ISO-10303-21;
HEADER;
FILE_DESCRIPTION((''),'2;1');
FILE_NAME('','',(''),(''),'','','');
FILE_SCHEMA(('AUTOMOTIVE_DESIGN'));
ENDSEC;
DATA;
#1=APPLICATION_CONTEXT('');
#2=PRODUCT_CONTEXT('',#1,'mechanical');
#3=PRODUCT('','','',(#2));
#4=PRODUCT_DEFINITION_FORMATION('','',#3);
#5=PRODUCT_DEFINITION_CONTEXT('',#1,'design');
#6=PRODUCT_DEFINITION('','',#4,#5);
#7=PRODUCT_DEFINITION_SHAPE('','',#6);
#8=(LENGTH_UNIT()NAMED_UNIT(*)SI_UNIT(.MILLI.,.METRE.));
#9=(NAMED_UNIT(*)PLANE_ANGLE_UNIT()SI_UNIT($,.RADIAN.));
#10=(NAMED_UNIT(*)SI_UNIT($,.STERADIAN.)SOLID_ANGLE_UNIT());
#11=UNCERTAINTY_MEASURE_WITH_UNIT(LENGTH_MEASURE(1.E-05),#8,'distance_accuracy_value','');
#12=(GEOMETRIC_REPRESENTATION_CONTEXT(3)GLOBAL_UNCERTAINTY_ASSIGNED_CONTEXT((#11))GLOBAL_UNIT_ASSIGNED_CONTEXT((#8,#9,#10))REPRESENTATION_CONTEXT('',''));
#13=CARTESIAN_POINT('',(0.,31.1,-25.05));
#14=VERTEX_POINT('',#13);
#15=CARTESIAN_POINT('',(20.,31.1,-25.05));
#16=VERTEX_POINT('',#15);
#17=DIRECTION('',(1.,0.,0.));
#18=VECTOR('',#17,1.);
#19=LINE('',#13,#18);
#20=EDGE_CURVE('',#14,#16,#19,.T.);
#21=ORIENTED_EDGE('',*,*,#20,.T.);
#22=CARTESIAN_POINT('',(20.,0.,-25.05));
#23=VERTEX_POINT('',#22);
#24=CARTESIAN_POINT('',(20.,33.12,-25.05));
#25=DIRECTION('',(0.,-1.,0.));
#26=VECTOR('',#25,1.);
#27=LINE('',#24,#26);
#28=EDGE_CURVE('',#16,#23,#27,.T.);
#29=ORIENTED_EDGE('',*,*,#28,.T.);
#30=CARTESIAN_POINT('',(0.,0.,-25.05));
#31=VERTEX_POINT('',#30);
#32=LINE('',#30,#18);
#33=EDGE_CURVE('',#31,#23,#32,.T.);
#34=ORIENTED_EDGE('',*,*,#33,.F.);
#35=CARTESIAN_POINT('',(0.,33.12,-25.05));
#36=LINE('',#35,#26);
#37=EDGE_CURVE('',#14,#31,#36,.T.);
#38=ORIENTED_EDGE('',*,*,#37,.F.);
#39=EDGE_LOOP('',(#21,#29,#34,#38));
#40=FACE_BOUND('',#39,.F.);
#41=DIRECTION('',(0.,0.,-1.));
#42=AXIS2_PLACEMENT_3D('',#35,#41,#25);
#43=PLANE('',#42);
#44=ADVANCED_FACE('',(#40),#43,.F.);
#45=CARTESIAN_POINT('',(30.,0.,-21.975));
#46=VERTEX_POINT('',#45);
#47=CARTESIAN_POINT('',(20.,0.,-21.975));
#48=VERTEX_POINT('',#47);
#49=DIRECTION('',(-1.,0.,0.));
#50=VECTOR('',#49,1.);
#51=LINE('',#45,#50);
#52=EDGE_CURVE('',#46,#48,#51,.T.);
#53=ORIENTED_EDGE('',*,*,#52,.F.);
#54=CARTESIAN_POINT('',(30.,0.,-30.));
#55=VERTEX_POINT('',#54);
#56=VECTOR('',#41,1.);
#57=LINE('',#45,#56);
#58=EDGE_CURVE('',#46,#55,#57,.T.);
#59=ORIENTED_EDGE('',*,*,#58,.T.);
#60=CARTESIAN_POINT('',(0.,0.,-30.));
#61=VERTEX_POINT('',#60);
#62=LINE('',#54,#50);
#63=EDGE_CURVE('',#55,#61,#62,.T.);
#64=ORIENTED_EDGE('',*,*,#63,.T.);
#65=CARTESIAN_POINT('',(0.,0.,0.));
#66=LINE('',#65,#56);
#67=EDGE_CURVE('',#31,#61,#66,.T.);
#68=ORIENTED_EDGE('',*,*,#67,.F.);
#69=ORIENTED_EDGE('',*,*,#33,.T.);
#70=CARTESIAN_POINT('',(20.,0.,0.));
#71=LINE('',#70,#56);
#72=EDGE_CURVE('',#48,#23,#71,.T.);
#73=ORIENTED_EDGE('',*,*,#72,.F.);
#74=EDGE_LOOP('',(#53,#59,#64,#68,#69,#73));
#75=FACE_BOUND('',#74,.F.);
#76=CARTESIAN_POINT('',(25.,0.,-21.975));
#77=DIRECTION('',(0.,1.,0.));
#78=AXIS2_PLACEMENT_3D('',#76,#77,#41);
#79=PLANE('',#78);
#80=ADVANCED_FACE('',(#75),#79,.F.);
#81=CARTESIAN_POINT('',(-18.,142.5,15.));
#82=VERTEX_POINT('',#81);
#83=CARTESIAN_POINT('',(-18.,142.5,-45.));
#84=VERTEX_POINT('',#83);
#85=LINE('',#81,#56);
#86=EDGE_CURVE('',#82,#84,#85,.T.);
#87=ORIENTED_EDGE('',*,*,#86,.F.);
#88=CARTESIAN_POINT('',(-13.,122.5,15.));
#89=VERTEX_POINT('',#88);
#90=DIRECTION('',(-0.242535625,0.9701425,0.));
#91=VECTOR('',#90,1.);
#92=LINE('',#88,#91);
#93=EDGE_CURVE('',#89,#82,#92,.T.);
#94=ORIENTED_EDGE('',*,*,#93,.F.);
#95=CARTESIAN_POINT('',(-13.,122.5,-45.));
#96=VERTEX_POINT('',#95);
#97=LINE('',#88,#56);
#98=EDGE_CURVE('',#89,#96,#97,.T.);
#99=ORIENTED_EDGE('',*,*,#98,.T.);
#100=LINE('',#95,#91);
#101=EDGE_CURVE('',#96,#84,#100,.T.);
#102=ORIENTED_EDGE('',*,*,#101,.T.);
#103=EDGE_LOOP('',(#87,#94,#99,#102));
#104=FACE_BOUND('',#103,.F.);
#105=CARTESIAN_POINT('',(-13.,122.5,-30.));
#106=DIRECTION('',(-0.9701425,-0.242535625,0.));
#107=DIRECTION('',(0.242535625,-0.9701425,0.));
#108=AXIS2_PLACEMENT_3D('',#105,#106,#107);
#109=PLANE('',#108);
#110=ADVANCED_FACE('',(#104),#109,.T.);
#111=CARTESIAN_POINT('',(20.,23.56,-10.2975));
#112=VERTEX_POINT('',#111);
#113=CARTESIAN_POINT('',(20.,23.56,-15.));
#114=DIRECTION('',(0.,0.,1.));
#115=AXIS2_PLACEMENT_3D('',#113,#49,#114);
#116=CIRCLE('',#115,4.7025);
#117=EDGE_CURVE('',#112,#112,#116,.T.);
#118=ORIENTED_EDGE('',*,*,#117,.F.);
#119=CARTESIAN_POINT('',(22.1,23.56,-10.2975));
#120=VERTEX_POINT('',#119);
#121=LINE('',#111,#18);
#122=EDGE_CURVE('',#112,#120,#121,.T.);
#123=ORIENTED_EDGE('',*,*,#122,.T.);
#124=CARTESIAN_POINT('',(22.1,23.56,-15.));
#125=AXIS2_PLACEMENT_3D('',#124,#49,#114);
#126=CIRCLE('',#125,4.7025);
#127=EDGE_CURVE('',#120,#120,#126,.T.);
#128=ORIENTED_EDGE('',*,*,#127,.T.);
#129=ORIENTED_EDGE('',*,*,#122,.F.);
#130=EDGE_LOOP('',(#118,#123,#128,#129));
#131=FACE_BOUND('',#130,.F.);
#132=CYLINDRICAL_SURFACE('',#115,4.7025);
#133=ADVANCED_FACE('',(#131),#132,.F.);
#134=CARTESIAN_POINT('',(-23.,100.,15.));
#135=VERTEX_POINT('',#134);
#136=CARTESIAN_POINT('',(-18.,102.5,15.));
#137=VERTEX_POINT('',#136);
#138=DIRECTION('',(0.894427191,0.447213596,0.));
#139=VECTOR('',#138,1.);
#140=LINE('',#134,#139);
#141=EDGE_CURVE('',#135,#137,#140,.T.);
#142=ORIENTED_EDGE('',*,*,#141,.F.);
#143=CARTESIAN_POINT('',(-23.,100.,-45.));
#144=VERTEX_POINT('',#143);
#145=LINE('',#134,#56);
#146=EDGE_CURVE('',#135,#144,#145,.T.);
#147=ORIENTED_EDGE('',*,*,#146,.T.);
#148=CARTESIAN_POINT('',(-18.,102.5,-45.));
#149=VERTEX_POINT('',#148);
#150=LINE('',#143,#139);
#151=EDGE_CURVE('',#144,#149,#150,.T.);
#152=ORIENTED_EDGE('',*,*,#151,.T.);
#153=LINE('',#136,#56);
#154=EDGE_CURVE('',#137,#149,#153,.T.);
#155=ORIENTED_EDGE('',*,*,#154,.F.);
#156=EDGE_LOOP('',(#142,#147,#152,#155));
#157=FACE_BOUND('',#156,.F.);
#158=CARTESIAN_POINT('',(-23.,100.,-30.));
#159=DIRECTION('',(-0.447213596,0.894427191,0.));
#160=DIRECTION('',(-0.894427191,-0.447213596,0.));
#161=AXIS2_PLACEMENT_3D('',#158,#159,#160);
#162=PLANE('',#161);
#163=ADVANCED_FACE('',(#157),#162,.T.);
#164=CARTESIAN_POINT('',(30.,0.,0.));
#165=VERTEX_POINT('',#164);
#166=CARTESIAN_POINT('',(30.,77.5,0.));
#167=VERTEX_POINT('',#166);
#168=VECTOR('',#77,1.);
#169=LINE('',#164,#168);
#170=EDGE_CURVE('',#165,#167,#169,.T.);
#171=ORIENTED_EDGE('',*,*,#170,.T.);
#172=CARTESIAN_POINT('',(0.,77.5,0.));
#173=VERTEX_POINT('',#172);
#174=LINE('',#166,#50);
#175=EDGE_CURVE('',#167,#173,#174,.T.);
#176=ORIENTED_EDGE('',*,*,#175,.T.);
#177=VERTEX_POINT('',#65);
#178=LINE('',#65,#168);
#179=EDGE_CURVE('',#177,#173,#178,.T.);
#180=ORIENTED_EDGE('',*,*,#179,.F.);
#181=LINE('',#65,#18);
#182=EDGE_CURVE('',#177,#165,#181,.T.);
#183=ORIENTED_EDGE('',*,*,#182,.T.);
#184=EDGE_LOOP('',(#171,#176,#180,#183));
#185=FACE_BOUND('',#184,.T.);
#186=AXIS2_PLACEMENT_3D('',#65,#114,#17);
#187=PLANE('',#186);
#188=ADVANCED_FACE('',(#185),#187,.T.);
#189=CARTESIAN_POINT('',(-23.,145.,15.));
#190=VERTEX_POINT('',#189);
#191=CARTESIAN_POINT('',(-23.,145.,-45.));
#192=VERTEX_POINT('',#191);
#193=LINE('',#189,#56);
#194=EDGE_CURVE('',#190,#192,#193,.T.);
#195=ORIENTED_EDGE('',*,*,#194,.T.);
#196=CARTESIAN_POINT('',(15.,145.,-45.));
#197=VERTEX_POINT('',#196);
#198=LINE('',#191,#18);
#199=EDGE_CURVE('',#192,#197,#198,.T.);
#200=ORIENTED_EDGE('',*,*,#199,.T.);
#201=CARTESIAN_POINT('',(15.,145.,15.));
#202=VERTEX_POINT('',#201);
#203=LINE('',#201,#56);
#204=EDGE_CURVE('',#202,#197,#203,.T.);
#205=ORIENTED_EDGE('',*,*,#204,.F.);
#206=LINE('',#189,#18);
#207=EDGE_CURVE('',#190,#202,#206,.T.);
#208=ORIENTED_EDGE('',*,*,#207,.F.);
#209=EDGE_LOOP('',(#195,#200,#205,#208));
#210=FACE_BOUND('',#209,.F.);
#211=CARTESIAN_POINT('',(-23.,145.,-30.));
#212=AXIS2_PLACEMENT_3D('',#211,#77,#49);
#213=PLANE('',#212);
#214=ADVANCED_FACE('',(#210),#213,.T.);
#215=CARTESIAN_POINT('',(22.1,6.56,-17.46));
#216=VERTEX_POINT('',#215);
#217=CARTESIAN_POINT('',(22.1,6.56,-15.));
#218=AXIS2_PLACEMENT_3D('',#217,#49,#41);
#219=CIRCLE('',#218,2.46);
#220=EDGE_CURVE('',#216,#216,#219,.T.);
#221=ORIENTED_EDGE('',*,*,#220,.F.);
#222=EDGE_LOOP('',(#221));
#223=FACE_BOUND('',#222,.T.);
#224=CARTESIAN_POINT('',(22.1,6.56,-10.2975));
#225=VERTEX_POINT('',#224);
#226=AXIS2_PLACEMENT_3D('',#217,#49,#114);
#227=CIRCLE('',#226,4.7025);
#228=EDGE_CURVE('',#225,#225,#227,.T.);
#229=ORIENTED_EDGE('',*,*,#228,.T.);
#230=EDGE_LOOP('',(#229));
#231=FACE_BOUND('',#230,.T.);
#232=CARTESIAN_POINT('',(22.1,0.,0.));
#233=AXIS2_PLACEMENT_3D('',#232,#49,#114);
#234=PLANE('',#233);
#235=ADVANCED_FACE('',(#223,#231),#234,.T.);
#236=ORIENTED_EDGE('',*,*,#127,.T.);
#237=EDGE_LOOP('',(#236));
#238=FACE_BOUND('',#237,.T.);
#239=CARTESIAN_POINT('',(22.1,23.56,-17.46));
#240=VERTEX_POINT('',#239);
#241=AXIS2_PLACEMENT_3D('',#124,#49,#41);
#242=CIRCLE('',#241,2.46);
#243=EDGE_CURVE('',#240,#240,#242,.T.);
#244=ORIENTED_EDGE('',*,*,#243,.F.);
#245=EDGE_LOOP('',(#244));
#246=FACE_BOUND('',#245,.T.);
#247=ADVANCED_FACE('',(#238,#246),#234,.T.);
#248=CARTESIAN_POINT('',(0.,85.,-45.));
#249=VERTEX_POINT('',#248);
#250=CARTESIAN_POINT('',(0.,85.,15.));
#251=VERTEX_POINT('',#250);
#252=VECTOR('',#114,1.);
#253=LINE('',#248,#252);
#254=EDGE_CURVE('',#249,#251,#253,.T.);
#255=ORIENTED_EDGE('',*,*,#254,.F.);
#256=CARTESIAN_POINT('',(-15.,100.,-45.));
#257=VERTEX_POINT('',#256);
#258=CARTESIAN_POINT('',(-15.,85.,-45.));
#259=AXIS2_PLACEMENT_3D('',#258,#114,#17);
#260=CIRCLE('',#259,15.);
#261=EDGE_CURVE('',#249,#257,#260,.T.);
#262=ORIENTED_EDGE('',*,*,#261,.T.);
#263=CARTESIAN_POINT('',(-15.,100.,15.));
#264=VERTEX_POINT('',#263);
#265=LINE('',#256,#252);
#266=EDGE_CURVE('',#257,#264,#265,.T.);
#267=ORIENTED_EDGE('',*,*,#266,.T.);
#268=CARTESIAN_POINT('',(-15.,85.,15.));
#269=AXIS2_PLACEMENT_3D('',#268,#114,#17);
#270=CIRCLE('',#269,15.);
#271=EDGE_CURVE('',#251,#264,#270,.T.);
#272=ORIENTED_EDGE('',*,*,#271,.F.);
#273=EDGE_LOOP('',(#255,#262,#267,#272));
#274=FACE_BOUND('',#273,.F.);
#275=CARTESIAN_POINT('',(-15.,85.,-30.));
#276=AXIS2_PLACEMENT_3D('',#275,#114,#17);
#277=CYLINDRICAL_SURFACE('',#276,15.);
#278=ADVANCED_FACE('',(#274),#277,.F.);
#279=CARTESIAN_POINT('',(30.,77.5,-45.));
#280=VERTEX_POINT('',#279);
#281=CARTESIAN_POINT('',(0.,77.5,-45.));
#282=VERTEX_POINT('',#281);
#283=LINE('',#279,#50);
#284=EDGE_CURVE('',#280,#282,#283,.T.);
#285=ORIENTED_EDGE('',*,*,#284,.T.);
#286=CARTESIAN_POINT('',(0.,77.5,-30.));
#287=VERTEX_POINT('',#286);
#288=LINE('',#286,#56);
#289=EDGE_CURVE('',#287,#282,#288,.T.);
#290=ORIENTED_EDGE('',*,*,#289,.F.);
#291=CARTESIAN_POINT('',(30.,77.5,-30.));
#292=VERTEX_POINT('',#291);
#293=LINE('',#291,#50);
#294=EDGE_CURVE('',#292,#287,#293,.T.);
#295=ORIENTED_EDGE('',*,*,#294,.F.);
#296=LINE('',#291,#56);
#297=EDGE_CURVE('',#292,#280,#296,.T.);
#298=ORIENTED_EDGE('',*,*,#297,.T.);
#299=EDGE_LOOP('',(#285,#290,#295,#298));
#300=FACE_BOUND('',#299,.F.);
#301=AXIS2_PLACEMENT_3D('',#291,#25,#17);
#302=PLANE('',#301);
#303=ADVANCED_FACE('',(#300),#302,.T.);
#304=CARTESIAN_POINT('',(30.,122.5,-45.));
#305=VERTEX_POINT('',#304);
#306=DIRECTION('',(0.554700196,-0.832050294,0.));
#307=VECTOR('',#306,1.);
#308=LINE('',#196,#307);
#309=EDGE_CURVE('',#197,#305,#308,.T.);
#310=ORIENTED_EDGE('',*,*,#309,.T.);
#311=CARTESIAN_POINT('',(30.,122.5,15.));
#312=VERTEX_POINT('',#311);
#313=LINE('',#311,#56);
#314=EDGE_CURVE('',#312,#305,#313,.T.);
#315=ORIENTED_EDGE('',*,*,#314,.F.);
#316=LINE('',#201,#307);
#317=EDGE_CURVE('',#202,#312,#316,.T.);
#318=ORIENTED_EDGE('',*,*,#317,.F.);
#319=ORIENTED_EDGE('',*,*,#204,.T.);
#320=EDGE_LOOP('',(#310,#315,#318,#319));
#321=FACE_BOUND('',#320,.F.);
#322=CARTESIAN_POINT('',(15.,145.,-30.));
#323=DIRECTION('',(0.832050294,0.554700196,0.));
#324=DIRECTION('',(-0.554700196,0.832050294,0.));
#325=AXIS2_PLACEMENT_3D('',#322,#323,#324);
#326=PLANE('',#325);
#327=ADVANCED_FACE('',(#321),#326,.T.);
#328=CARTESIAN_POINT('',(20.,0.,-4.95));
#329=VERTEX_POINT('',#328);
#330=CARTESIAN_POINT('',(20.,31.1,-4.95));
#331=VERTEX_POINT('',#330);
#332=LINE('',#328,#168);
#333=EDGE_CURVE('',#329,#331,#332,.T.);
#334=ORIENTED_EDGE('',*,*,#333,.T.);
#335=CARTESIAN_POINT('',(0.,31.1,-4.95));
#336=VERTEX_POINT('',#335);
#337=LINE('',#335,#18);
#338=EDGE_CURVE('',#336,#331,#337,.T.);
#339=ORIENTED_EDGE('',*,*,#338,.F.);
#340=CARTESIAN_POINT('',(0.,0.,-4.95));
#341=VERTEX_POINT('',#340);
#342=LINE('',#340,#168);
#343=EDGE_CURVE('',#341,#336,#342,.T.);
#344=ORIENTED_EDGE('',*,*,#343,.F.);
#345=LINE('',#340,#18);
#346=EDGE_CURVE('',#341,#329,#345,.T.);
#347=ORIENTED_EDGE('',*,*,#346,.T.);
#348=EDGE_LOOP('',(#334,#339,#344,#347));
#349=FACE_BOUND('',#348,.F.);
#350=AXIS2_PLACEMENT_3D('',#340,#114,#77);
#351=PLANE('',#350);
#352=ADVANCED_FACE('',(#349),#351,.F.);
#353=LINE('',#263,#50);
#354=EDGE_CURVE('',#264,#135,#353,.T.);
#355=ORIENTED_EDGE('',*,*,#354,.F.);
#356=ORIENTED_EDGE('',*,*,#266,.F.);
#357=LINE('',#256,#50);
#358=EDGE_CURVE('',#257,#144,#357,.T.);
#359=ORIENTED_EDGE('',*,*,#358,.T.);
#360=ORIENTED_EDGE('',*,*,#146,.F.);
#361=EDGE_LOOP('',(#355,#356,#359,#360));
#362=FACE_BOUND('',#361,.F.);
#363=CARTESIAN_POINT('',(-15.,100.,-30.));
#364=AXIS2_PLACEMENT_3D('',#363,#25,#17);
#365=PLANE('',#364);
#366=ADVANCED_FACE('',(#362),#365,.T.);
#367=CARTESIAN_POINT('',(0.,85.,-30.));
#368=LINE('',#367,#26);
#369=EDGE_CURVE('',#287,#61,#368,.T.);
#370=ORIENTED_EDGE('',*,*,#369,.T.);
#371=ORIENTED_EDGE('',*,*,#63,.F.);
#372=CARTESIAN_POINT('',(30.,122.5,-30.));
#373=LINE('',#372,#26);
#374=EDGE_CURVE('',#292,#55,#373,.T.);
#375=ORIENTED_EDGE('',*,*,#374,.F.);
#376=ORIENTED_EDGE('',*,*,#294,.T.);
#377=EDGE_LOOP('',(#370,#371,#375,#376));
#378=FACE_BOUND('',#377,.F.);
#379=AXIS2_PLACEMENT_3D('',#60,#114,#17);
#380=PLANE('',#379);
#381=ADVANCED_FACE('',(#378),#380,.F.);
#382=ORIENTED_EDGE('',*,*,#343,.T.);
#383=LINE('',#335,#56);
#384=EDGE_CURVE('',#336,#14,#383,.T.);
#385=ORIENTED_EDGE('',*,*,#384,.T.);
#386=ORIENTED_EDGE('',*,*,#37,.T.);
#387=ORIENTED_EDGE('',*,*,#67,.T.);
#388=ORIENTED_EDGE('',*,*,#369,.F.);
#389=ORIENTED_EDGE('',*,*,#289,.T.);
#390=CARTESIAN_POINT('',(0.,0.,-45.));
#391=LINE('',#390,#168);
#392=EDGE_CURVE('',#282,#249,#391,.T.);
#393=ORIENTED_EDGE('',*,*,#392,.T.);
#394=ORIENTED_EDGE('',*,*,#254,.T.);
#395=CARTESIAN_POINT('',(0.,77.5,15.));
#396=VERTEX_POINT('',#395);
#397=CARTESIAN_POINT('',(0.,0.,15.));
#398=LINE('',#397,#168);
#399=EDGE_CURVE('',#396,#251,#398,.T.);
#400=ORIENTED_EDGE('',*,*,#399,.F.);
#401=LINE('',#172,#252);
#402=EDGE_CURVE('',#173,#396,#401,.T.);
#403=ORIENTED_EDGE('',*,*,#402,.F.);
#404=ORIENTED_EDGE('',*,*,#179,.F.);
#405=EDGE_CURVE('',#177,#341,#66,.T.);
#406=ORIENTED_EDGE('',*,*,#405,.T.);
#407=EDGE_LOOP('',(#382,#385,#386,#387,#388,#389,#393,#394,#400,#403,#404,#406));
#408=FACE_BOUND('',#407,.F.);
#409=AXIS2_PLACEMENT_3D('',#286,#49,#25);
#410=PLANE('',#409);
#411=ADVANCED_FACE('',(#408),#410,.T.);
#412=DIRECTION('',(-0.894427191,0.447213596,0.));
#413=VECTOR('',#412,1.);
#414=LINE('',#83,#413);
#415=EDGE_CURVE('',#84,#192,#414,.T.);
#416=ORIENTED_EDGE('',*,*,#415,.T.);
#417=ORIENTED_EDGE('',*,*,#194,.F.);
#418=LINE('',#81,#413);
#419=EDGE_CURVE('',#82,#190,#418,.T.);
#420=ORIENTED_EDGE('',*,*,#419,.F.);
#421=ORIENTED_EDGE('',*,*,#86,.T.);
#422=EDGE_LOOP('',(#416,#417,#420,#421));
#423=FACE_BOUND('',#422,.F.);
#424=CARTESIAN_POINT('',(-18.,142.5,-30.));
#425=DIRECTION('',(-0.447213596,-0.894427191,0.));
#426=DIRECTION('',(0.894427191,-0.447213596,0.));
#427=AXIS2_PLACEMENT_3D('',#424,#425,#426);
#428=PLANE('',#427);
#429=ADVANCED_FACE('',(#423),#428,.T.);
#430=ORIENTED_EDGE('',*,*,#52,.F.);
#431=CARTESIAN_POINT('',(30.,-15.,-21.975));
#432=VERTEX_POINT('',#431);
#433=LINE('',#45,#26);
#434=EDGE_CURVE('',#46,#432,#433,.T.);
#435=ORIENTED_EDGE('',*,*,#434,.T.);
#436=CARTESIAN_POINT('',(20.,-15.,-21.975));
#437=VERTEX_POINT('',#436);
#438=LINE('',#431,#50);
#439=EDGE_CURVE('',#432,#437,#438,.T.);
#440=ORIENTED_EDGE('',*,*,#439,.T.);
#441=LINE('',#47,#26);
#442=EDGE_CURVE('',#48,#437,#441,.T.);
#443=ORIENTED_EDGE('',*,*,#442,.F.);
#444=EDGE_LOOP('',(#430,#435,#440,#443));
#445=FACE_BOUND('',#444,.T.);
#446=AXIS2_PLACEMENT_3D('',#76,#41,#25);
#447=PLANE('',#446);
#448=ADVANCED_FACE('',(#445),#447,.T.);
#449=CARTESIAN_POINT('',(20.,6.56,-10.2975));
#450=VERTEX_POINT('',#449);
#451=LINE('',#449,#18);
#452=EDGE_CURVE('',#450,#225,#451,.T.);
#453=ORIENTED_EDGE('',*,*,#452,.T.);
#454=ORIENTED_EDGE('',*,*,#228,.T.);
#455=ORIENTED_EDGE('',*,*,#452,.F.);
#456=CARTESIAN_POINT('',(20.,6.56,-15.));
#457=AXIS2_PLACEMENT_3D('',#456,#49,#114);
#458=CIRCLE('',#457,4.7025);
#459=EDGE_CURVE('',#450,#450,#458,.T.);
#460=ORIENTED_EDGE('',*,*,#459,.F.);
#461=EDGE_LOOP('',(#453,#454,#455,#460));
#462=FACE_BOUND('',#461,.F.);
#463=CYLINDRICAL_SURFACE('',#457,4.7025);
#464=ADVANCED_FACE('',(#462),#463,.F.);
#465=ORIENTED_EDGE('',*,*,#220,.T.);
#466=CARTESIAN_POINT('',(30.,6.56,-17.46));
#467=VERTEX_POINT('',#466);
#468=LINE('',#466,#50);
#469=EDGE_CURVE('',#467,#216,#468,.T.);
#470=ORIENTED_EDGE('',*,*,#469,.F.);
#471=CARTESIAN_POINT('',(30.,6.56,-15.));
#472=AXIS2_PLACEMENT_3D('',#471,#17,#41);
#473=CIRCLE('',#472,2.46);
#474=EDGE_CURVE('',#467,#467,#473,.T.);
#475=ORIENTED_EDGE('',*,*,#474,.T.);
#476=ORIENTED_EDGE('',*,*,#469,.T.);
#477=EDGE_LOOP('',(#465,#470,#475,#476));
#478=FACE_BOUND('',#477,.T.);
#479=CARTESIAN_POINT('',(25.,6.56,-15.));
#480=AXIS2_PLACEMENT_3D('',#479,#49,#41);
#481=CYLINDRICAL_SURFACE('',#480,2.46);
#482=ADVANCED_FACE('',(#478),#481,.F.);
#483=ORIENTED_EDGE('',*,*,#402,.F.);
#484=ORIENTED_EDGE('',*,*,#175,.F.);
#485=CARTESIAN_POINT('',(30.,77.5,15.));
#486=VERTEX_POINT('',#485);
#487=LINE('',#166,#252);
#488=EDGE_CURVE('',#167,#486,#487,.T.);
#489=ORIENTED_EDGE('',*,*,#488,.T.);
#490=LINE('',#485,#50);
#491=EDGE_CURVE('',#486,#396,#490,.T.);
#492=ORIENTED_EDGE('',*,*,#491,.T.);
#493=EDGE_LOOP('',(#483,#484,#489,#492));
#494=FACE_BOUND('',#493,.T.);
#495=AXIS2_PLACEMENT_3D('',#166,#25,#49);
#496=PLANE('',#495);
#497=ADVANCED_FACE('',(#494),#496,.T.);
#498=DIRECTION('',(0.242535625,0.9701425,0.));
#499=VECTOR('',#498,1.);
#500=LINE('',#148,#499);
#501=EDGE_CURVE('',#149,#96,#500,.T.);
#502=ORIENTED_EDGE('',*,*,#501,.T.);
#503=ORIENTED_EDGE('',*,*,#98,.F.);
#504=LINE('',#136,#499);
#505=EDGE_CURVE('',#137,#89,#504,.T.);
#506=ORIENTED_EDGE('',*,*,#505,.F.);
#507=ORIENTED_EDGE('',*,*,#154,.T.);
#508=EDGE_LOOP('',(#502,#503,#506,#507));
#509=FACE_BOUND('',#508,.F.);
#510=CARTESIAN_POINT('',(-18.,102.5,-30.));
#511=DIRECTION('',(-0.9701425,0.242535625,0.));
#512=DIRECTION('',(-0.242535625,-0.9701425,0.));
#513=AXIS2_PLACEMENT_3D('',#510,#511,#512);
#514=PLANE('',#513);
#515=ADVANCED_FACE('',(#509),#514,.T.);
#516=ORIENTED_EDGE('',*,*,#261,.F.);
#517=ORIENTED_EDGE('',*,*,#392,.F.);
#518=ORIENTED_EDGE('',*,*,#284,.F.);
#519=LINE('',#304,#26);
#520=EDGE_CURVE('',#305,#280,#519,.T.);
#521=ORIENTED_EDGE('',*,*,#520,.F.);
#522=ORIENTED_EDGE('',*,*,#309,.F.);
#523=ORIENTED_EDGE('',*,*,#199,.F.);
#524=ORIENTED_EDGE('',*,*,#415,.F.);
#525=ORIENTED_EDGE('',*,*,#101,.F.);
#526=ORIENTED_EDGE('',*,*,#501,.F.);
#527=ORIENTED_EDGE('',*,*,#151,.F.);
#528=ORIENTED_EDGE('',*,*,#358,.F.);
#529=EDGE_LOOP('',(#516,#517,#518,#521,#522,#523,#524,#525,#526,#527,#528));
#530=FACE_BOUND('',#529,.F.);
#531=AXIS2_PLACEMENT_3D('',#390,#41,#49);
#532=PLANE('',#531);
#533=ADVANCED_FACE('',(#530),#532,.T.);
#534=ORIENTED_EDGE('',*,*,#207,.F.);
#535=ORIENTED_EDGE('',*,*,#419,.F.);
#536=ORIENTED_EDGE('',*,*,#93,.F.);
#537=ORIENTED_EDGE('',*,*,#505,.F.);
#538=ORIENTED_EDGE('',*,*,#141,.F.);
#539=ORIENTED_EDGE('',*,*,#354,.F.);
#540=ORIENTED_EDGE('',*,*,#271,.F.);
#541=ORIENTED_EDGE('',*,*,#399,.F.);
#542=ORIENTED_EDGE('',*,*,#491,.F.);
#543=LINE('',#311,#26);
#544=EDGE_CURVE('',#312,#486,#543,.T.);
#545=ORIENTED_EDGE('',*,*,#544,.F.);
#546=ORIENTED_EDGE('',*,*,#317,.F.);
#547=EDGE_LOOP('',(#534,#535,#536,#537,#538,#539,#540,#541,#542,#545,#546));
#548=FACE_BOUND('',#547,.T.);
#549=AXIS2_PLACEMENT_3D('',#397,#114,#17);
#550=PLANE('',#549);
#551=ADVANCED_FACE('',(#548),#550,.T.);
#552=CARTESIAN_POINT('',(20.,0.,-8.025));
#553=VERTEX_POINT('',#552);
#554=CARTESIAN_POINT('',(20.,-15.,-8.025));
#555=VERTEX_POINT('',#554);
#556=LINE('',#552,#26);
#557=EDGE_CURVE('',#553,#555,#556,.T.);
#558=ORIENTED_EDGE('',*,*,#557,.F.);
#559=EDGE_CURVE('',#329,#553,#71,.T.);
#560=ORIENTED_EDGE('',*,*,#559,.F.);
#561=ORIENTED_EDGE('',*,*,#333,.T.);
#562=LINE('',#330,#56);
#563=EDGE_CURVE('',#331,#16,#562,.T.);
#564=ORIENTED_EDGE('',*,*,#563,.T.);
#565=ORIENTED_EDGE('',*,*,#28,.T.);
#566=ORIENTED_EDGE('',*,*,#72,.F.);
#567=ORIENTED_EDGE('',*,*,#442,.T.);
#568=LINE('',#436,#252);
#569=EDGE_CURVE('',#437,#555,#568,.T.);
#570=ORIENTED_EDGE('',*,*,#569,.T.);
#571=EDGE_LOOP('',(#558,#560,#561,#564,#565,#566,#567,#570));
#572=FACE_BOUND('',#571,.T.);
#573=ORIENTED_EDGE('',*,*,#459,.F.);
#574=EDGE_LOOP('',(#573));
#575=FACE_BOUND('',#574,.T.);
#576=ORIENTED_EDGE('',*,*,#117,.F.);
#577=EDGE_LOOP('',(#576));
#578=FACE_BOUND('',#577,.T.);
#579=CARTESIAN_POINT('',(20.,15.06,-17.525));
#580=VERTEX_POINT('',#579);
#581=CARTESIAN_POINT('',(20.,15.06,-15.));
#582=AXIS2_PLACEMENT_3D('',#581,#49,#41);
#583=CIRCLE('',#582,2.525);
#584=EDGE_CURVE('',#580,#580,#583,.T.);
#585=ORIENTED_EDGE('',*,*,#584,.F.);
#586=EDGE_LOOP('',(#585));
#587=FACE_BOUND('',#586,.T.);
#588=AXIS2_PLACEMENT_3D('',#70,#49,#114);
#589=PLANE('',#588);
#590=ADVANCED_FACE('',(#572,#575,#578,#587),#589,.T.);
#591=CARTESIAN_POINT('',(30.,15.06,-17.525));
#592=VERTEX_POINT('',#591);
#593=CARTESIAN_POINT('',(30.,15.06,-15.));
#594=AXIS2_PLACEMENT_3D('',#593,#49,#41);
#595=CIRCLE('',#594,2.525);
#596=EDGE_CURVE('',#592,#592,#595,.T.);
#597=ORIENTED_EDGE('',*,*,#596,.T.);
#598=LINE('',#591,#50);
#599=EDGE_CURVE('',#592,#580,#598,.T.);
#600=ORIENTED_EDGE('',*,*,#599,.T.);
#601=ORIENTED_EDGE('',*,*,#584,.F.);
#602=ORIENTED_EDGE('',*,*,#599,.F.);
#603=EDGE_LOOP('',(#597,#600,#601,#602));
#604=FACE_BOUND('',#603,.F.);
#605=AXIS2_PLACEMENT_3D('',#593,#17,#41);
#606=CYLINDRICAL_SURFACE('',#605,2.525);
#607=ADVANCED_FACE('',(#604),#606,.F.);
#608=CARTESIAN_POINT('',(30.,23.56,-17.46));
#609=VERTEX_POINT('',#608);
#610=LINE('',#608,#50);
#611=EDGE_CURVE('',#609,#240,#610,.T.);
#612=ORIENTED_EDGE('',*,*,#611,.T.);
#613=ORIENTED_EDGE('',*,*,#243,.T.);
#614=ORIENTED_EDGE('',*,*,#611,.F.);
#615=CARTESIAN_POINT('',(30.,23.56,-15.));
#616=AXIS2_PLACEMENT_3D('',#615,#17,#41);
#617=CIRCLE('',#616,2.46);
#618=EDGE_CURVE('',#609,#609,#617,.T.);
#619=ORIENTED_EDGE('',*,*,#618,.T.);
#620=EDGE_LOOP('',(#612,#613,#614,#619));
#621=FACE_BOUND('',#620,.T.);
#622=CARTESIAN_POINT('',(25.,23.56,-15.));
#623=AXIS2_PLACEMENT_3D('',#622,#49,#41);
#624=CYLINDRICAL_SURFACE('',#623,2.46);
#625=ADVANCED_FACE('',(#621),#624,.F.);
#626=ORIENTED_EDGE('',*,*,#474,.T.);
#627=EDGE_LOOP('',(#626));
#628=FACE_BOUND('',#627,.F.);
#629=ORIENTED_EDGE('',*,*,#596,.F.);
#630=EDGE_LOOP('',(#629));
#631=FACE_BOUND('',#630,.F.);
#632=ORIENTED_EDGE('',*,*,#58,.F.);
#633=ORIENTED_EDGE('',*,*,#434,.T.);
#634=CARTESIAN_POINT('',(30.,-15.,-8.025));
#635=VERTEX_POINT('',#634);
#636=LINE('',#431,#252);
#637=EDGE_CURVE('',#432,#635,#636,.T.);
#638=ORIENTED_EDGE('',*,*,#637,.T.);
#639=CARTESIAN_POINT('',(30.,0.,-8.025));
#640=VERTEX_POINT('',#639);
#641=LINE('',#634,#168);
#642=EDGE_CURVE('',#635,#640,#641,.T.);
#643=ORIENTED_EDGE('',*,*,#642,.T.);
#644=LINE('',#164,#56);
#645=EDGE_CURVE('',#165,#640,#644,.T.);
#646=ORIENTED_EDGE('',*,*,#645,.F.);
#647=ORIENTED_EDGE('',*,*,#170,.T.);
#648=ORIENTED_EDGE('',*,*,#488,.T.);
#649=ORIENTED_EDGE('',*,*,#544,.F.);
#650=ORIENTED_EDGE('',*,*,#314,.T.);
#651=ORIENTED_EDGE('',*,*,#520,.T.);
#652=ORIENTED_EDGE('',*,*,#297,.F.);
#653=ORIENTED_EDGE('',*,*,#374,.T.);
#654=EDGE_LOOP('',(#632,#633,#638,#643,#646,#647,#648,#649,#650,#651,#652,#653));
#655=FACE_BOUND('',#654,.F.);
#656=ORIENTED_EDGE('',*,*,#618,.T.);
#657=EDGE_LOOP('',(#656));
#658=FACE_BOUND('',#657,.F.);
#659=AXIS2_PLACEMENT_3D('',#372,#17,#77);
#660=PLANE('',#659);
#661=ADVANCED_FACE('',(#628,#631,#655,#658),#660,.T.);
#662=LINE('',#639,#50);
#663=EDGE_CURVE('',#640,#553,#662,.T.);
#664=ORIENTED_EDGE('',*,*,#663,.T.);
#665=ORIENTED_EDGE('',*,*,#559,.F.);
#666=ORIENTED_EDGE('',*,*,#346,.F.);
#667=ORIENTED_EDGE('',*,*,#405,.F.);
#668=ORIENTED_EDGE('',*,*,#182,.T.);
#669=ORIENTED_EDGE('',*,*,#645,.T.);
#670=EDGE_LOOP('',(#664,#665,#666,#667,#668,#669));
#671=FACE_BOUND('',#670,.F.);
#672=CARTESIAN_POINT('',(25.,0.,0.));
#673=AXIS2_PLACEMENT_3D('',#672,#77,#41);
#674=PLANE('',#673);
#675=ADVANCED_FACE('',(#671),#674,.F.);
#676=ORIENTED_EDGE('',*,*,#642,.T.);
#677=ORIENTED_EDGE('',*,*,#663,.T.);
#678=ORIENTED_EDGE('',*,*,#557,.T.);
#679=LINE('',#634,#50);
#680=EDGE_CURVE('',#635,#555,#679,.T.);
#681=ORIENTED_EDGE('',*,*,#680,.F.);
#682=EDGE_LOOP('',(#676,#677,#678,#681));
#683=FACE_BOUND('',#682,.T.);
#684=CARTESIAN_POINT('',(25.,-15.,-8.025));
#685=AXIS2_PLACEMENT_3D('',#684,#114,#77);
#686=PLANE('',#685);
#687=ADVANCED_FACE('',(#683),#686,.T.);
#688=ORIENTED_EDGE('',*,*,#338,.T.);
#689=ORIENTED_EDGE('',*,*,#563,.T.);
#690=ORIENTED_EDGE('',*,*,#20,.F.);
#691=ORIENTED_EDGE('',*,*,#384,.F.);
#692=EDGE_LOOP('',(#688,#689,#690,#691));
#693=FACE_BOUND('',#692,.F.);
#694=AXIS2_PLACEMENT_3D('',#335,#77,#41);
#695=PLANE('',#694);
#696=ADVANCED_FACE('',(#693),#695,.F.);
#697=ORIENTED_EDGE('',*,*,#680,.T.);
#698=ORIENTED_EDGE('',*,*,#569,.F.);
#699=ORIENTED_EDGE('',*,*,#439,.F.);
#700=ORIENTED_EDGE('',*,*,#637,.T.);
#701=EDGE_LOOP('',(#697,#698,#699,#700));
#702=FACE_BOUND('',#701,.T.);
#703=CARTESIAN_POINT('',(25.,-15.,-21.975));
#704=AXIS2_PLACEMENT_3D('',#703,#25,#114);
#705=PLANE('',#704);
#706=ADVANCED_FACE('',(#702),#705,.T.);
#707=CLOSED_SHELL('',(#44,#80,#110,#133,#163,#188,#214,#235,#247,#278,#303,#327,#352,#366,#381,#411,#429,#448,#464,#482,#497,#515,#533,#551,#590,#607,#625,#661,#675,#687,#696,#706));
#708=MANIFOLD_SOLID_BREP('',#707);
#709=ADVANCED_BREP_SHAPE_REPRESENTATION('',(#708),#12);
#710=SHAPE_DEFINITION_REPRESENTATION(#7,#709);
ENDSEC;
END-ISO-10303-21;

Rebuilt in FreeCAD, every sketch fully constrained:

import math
import FreeCAD as App
import Part
import Sketcher
from FreeCAD import Vector
Q = App.Units.Quantity

doc = App.newDocument("Part")
body = doc.addObject("PartDesign::Body", "Body")

sketch1 = body.newObject("Sketcher::SketchObject", "Sketch")
sketch1.AttachmentSupport = (doc.getObject("XY_Plane"), [""])
sketch1.MapMode = "FlatFace"
sketch1.addGeometry(Part.LineSegment(Vector(0, 40, 0), Vector(0, 0, 0)), False)
sketch1.addGeometry(Part.LineSegment(Vector(0, 0, 0), Vector(25, 0, 0)), False)
sketch1.addGeometry(Part.LineSegment(Vector(25, 0, 0), Vector(25, 40, 0)), False)
sketch1.addGeometry(Part.LineSegment(Vector(25, 40, 0), Vector(0, 40, 0)), False)
sketch1.addConstraint(Sketcher.Constraint("Coincident", 0, 2, 1, 1))
sketch1.addConstraint(Sketcher.Constraint("Coincident", 1, 2, 2, 1))
sketch1.addConstraint(Sketcher.Constraint("Coincident", 2, 2, 3, 1))
sketch1.addConstraint(Sketcher.Constraint("Coincident", 3, 2, 0, 1))
sketch1.addConstraint(Sketcher.Constraint("Vertical", 0))
sketch1.addConstraint(Sketcher.Constraint("Horizontal", 1))
sketch1.addConstraint(Sketcher.Constraint("Vertical", 2))
sketch1.addConstraint(Sketcher.Constraint("Horizontal", 3))
sketch1.addConstraint(Sketcher.Constraint("Coincident", 0, 2, -1, 1))
sketch1.addConstraint(Sketcher.Constraint("DistanceX", 1, 1, 1, 2, Q("25 mm")))
sketch1.addConstraint(Sketcher.Constraint("DistanceY", 0, 2, 0, 1, Q("40 mm")))
pad1 = body.newObject("PartDesign::Pad", "Pad")
pad1.Profile = sketch1
pad1.Length = 30
pad1.Reversed = True

sketch2 = body.newObject("Sketcher::SketchObject", "Sketch001")
sketch2.AttachmentSupport = (doc.getObject("YZ_Plane"), [""])
sketch2.MapMode = "FlatFace"
sketch2.AttachmentOffset = App.Placement(Vector(0, 0, 25), App.Rotation())
sketch2.addGeometry(Part.Circle(Vector(6.56, -15, 0), Vector(0, 0, 1), 2.46), False)
sketch2.addConstraint(Sketcher.Constraint("Diameter", 0, Q("4.92 mm")))
sketch2.addConstraint(Sketcher.Constraint("DistanceY", 0, 3, -1, 1, Q("15 mm")))
sketch2.addConstraint(Sketcher.Constraint("DistanceX", -1, 1, 0, 3, Q("6.56 mm")))
pocket1 = body.newObject("PartDesign::Pocket", "Pocket")
pocket1.Profile = sketch2
pocket1.Length = 30

sketch3 = body.newObject("Sketcher::SketchObject", "Sketch002")
sketch3.AttachmentSupport = (doc.getObject("YZ_Plane"), [""])
sketch3.MapMode = "FlatFace"
sketch3.addGeometry(Part.LineSegment(Vector(0, -25.05, 0), Vector(0, -4.95, 0)), False)
sketch3.addGeometry(Part.LineSegment(Vector(0, -4.95, 0), Vector(33.12, -4.95, 0)), False)
sketch3.addGeometry(Part.LineSegment(Vector(33.12, -4.95, 0), Vector(33.12, -25.05, 0)), False)
sketch3.addGeometry(Part.LineSegment(Vector(33.12, -25.05, 0), Vector(0, -25.05, 0)), False)
sketch3.addConstraint(Sketcher.Constraint("Coincident", 0, 2, 1, 1))
sketch3.addConstraint(Sketcher.Constraint("Coincident", 1, 2, 2, 1))
sketch3.addConstraint(Sketcher.Constraint("Coincident", 2, 2, 3, 1))
sketch3.addConstraint(Sketcher.Constraint("Coincident", 3, 2, 0, 1))
sketch3.addConstraint(Sketcher.Constraint("Vertical", 0))
sketch3.addConstraint(Sketcher.Constraint("Horizontal", 1))
sketch3.addConstraint(Sketcher.Constraint("Vertical", 2))
sketch3.addConstraint(Sketcher.Constraint("Horizontal", 3))
sketch3.addConstraint(Sketcher.Constraint("PointOnObject", 0, 2, -2))
sketch3.addConstraint(Sketcher.Constraint("DistanceY", 0, 1, 0, 2, Q("20.1 mm")))
sketch3.addConstraint(Sketcher.Constraint("DistanceX", 1, 1, 1, 2, Q("33.12 mm")))
sketch3.addConstraint(Sketcher.Constraint("DistanceY", 0, 2, -1, 1, Q("4.95 mm")))
pocket2 = body.newObject("PartDesign::Pocket", "Pocket001")
pocket2.Profile = sketch3
pocket2.Length = 20
pocket2.Reversed = True

sketch4 = body.newObject("Sketcher::SketchObject", "Sketch003")
sketch4.AttachmentSupport = (doc.getObject("XZ_Plane"), [""])
sketch4.MapMode = "FlatFace"
sketch4.addGeometry(Part.LineSegment(Vector(25, -8.025, 0), Vector(20, -8.025, 0)), False)
sketch4.addGeometry(Part.LineSegment(Vector(20, -8.025, 0), Vector(20, -21.975, 0)), False)
sketch4.addGeometry(Part.LineSegment(Vector(20, -21.975, 0), Vector(25, -21.975, 0)), False)
sketch4.addGeometry(Part.LineSegment(Vector(25, -21.975, 0), Vector(25, -8.025, 0)), False)
sketch4.addConstraint(Sketcher.Constraint("Coincident", 0, 2, 1, 1))
sketch4.addConstraint(Sketcher.Constraint("Coincident", 1, 2, 2, 1))
sketch4.addConstraint(Sketcher.Constraint("Coincident", 2, 2, 3, 1))
sketch4.addConstraint(Sketcher.Constraint("Coincident", 3, 2, 0, 1))
sketch4.addConstraint(Sketcher.Constraint("Horizontal", 0))
sketch4.addConstraint(Sketcher.Constraint("Vertical", 1))
sketch4.addConstraint(Sketcher.Constraint("Horizontal", 2))
sketch4.addConstraint(Sketcher.Constraint("Vertical", 3))
sketch4.addConstraint(Sketcher.Constraint("DistanceY", 1, 2, 1, 1, Q("13.95 mm")))
sketch4.addConstraint(Sketcher.Constraint("DistanceX", 0, 2, 0, 1, Q("5 mm")))
sketch4.addConstraint(Sketcher.Constraint("DistanceX", -1, 1, 0, 2, Q("20 mm")))
sketch4.addConstraint(Sketcher.Constraint("DistanceY", 0, 2, -1, 1, Q("8.025 mm")))
pad2 = body.newObject("PartDesign::Pad", "Pad001")
pad2.Profile = sketch4
pad2.Length = 15

sketch5 = body.newObject("Sketcher::SketchObject", "Sketch004")
sketch5.AttachmentSupport = (doc.getObject("YZ_Plane"), [""])
sketch5.MapMode = "FlatFace"
sketch5.AttachmentOffset = App.Placement(Vector(0, 0, 20), App.Rotation())
sketch5.addGeometry(Part.Circle(Vector(6.56, -15, 0), Vector(0, 0, 1), 4.7025), False)
sketch5.addGeometry(Part.Circle(Vector(6.56, -15, 0), Vector(0, 0, 1), 2.46), False)
sketch5.addConstraint(Sketcher.Constraint("Coincident", 1, 3, 0, 3))
sketch5.addConstraint(Sketcher.Constraint("Diameter", 0, Q("9.405 mm")))
sketch5.addConstraint(Sketcher.Constraint("Diameter", 1, Q("4.92 mm")))
sketch5.addConstraint(Sketcher.Constraint("DistanceY", 0, 3, -1, 1, Q("15 mm")))
sketch5.addConstraint(Sketcher.Constraint("DistanceX", -1, 1, 0, 3, Q("6.56 mm")))
pocket3 = body.newObject("PartDesign::Pocket", "Pocket002")
pocket3.Profile = sketch5
pocket3.Length = 2.1
pocket3.Reversed = True

sketch6 = body.newObject("Sketcher::SketchObject", "Sketch005")
sketch6.AttachmentSupport = (doc.getObject("YZ_Plane"), [""])
sketch6.MapMode = "FlatFace"
sketch6.AttachmentOffset = App.Placement(Vector(0, 0, 25), App.Rotation())
sketch6.addGeometry(Part.Circle(Vector(23.56, -15, 0), Vector(0, 0, 1), 2.46), False)
sketch6.addConstraint(Sketcher.Constraint("Diameter", 0, Q("4.92 mm")))
sketch6.addConstraint(Sketcher.Constraint("DistanceY", 0, 3, -1, 1, Q("15 mm")))
sketch6.addConstraint(Sketcher.Constraint("DistanceX", -1, 1, 0, 3, Q("23.56 mm")))
pocket4 = body.newObject("PartDesign::Pocket", "Pocket003")
pocket4.Profile = sketch6
pocket4.Length = 10

sketch7 = body.newObject("Sketcher::SketchObject", "Sketch006")
sketch7.AttachmentSupport = (doc.getObject("YZ_Plane"), [""])
sketch7.MapMode = "FlatFace"
sketch7.AttachmentOffset = App.Placement(Vector(0, 0, 20), App.Rotation())
sketch7.addGeometry(Part.Circle(Vector(23.56, -15, 0), Vector(0, 0, 1), 4.7025), False)
sketch7.addGeometry(Part.Circle(Vector(23.56, -15, 0), Vector(0, 0, 1), 2.46), False)
sketch7.addConstraint(Sketcher.Constraint("Coincident", 1, 3, 0, 3))
sketch7.addConstraint(Sketcher.Constraint("Diameter", 0, Q("9.405 mm")))
sketch7.addConstraint(Sketcher.Constraint("Diameter", 1, Q("4.92 mm")))
sketch7.addConstraint(Sketcher.Constraint("DistanceY", 0, 3, -1, 1, Q("15 mm")))
sketch7.addConstraint(Sketcher.Constraint("DistanceX", -1, 1, 0, 3, Q("23.56 mm")))
pocket5 = body.newObject("PartDesign::Pocket", "Pocket004")
pocket5.Profile = sketch7
pocket5.Length = 2.1
pocket5.Reversed = True

sketch8 = body.newObject("Sketcher::SketchObject", "Sketch007")
sketch8.AttachmentSupport = (doc.getObject("YZ_Plane"), [""])
sketch8.MapMode = "FlatFace"
sketch8.AttachmentOffset = App.Placement(Vector(0, 0, 25), App.Rotation())
sketch8.addGeometry(Part.LineSegment(Vector(0, -30, 0), Vector(40, -30, 0)), False)
sketch8.addGeometry(Part.LineSegment(Vector(40, -30, 0), Vector(40, 0, 0)), False)
sketch8.addGeometry(Part.LineSegment(Vector(40, 0, 0), Vector(0, 0, 0)), False)
sketch8.addGeometry(Part.LineSegment(Vector(0, 0, 0), Vector(0, -8.025, 0)), False)
sketch8.addGeometry(Part.LineSegment(Vector(0, -8.025, 0), Vector(-15, -8.025, 0)), False)
sketch8.addGeometry(Part.LineSegment(Vector(-15, -8.025, 0), Vector(-15, -21.975, 0)), False)
sketch8.addGeometry(Part.LineSegment(Vector(-15, -21.975, 0), Vector(0, -21.975, 0)), False)
sketch8.addGeometry(Part.LineSegment(Vector(0, -21.975, 0), Vector(0, -30, 0)), False)
sketch8.addGeometry(Part.Circle(Vector(6.56, -15, 0), Vector(0, 0, 1), 2.46), False)
sketch8.addGeometry(Part.Circle(Vector(23.56, -15, 0), Vector(0, 0, 1), 2.46), False)
sketch8.addConstraint(Sketcher.Constraint("Coincident", 0, 2, 1, 1))
sketch8.addConstraint(Sketcher.Constraint("Coincident", 1, 2, 2, 1))
sketch8.addConstraint(Sketcher.Constraint("Coincident", 2, 2, 3, 1))
sketch8.addConstraint(Sketcher.Constraint("Coincident", 3, 2, 4, 1))
sketch8.addConstraint(Sketcher.Constraint("Coincident", 4, 2, 5, 1))
sketch8.addConstraint(Sketcher.Constraint("Coincident", 5, 2, 6, 1))
sketch8.addConstraint(Sketcher.Constraint("Coincident", 6, 2, 7, 1))
sketch8.addConstraint(Sketcher.Constraint("Coincident", 7, 2, 0, 1))
sketch8.addConstraint(Sketcher.Constraint("Horizontal", 0))
sketch8.addConstraint(Sketcher.Constraint("Vertical", 1))
sketch8.addConstraint(Sketcher.Constraint("Horizontal", 2))
sketch8.addConstraint(Sketcher.Constraint("Vertical", 3))
sketch8.addConstraint(Sketcher.Constraint("Horizontal", 4))
sketch8.addConstraint(Sketcher.Constraint("Vertical", 5))
sketch8.addConstraint(Sketcher.Constraint("Horizontal", 6))
sketch8.addConstraint(Sketcher.Constraint("Vertical", 7))
sketch8.addConstraint(Sketcher.Constraint("Coincident", 2, 2, -1, 1))
sketch8.addConstraint(Sketcher.Constraint("Equal", 8, 9))
sketch8.addConstraint(Sketcher.Constraint("PointOnObject", 6, 2, -2))
sketch8.addConstraint(Sketcher.Constraint("Horizontal", 8, 3, 9, 3))
sketch8.addConstraint(Sketcher.Constraint("Equal", 3, 7))
sketch8.addConstraint(Sketcher.Constraint("Diameter", 8, Q("4.92 mm")))
sketch8.addConstraint(Sketcher.Constraint("DistanceX", 0, 1, 0, 2, Q("40 mm")))
sketch8.addConstraint(Sketcher.Constraint("DistanceX", 4, 2, 4, 1, Q("15 mm")))
sketch8.addConstraint(Sketcher.Constraint("DistanceY", 1, 1, 1, 2, Q("30 mm")))
sketch8.addConstraint(Sketcher.Constraint("DistanceY", 8, 3, -1, 1, Q("15 mm")))
sketch8.addConstraint(Sketcher.Constraint("DistanceX", 8, 3, 9, 3, Q("17 mm")))
sketch8.addConstraint(Sketcher.Constraint("DistanceY", 5, 2, 5, 1, Q("13.95 mm")))
sketch8.addConstraint(Sketcher.Constraint("DistanceX", -1, 1, 8, 3, Q("6.56 mm")))
pad3 = body.newObject("PartDesign::Pad", "Pad002")
pad3.Profile = sketch8
pad3.Length = 5

sketch9 = body.newObject("Sketcher::SketchObject", "Sketch008")
sketch9.AttachmentSupport = (doc.getObject("XZ_Plane"), [""])
sketch9.MapMode = "FlatFace"
sketch9.AttachmentOffset = App.Placement(Vector(0, 0, -40), App.Rotation())
sketch9.addGeometry(Part.LineSegment(Vector(30, -30, 0), Vector(0, -30, 0)), False)
sketch9.addGeometry(Part.LineSegment(Vector(0, -30, 0), Vector(0, 0, 0)), False)
sketch9.addGeometry(Part.LineSegment(Vector(0, 0, 0), Vector(30, 0, 0)), False)
sketch9.addGeometry(Part.LineSegment(Vector(30, 0, 0), Vector(30, -30, 0)), False)
sketch9.addConstraint(Sketcher.Constraint("Coincident", 0, 2, 1, 1))
sketch9.addConstraint(Sketcher.Constraint("Coincident", 1, 2, 2, 1))
sketch9.addConstraint(Sketcher.Constraint("Coincident", 2, 2, 3, 1))
sketch9.addConstraint(Sketcher.Constraint("Coincident", 3, 2, 0, 1))
sketch9.addConstraint(Sketcher.Constraint("Horizontal", 0))
sketch9.addConstraint(Sketcher.Constraint("Vertical", 1))
sketch9.addConstraint(Sketcher.Constraint("Horizontal", 2))
sketch9.addConstraint(Sketcher.Constraint("Vertical", 3))
sketch9.addConstraint(Sketcher.Constraint("Coincident", 1, 2, -1, 1))
sketch9.addConstraint(Sketcher.Constraint("Equal", 2, 1))
sketch9.addConstraint(Sketcher.Constraint("DistanceX", 0, 2, 0, 1, Q("30 mm")))
pad4 = body.newObject("PartDesign::Pad", "Pad003")
pad4.Profile = sketch9
pad4.Length = 30
pad4.Reversed = True

sketch10 = body.newObject("Sketcher::SketchObject", "Sketch009")
sketch10.AttachmentSupport = (doc.getObject("YZ_Plane"), [""])
sketch10.MapMode = "FlatFace"
sketch10.AttachmentOffset = App.Placement(Vector(0, 0, 30), App.Rotation())
sketch10.addGeometry(Part.Circle(Vector(15.06, -15, 0), Vector(0, 0, 1), 2.525), False)
sketch10.addConstraint(Sketcher.Constraint("Diameter", 0, Q("5.05 mm")))
sketch10.addConstraint(Sketcher.Constraint("DistanceY", 0, 3, -1, 1, Q("15 mm")))
sketch10.addConstraint(Sketcher.Constraint("DistanceX", -1, 1, 0, 3, Q("15.06 mm")))
pocket6 = body.newObject("PartDesign::Pocket", "Pocket005")
pocket6.Profile = sketch10
pocket6.Length = 30

sketch11 = body.newObject("Sketcher::SketchObject", "Sketch010")
sketch11.AttachmentSupport = (doc.getObject("XY_Plane"), [""])
sketch11.MapMode = "FlatFace"
sketch11.addGeometry(Part.LineSegment(Vector(0, 70, 0), Vector(30, 70, 0)), False)
sketch11.addGeometry(Part.LineSegment(Vector(30, 70, 0), Vector(30, 122.5, 0)), False)
sketch11.addGeometry(Part.LineSegment(Vector(30, 122.5, 0), Vector(15, 145, 0)), False)
sketch11.addGeometry(Part.LineSegment(Vector(15, 145, 0), Vector(-23, 145, 0)), False)
sketch11.addGeometry(Part.LineSegment(Vector(-23, 145, 0), Vector(-18, 142.5, 0)), False)
sketch11.addGeometry(Part.LineSegment(Vector(-18, 142.5, 0), Vector(-13, 122.5, 0)), False)
sketch11.addGeometry(Part.LineSegment(Vector(-13, 122.5, 0), Vector(-18, 102.5, 0)), False)
sketch11.addGeometry(Part.LineSegment(Vector(-18, 102.5, 0), Vector(-23, 100, 0)), False)
sketch11.addGeometry(Part.LineSegment(Vector(-23, 100, 0), Vector(-15, 100, 0)), False)
sketch11.addGeometry(Part.ArcOfCircle(Part.Circle(Vector(-15, 85, 0), Vector(0, 0, 1), 15), math.radians(0), math.radians(90)), False)
sketch11.addGeometry(Part.LineSegment(Vector(0, 85, 0), Vector(0, 70, 0)), False)
sketch11.addConstraint(Sketcher.Constraint("Coincident", 0, 2, 1, 1))
sketch11.addConstraint(Sketcher.Constraint("Coincident", 1, 2, 2, 1))
sketch11.addConstraint(Sketcher.Constraint("Coincident", 2, 2, 3, 1))
sketch11.addConstraint(Sketcher.Constraint("Coincident", 3, 2, 4, 1))
sketch11.addConstraint(Sketcher.Constraint("Coincident", 4, 2, 5, 1))
sketch11.addConstraint(Sketcher.Constraint("Coincident", 5, 2, 6, 1))
sketch11.addConstraint(Sketcher.Constraint("Coincident", 6, 2, 7, 1))
sketch11.addConstraint(Sketcher.Constraint("Coincident", 7, 2, 8, 1))
sketch11.addConstraint(Sketcher.Constraint("Tangent", 8, 2, 9, 2))
sketch11.addConstraint(Sketcher.Constraint("Tangent", 9, 1, 10, 1))
sketch11.addConstraint(Sketcher.Constraint("Coincident", 10, 2, 0, 1))
sketch11.addConstraint(Sketcher.Constraint("Horizontal", 0))
sketch11.addConstraint(Sketcher.Constraint("Vertical", 1))
sketch11.addConstraint(Sketcher.Constraint("Horizontal", 3))
sketch11.addConstraint(Sketcher.Constraint("Horizontal", 8))
sketch11.addConstraint(Sketcher.Constraint("Vertical", 10))
sketch11.addConstraint(Sketcher.Constraint("PointOnObject", 9, 1, -2))
sketch11.addConstraint(Sketcher.Constraint("Horizontal", 1, 2, 5, 2))
sketch11.addConstraint(Sketcher.Constraint("Vertical", 4, 2, 6, 2))
sketch11.addConstraint(Sketcher.Constraint("Vertical", 3, 2, 7, 2))
sketch11.addConstraint(Sketcher.Constraint("Equal", 5, 6))
sketch11.addConstraint(Sketcher.Constraint("Equal", 4, 7))
sketch11.addConstraint(Sketcher.Constraint("Radius", 9, Q("15 mm")))
sketch11.addConstraint(Sketcher.Constraint("DistanceX", 0, 1, 0, 2, Q("30 mm")))
sketch11.addConstraint(Sketcher.Constraint("DistanceY", 10, 2, 10, 1, Q("15 mm")))
sketch11.addConstraint(Sketcher.Constraint("DistanceX", -1, 1, 2, 2, Q("15 mm")))
sketch11.addConstraint(Sketcher.Constraint("DistanceX", 3, 2, 3, 1, Q("38 mm")))
sketch11.addConstraint(Sketcher.Constraint("DistanceY", 1, 1, 1, 2, Q("52.5 mm")))
sketch11.addConstraint(Sketcher.Constraint("DistanceY", -1, 1, 9, 3, Q("85 mm")))
sketch11.addConstraint(Sketcher.Constraint("DistanceX", 4, 2, -1, 1, Q("18 mm")))
sketch11.addConstraint(Sketcher.Constraint("DistanceX", 5, 2, -1, 1, Q("13 mm")))
sketch11.addConstraint(Sketcher.Constraint("DistanceY", 1, 2, 4, 2, Q("20 mm")))
pad5 = body.newObject("PartDesign::Pad", "Pad004")
pad5.Profile = sketch11
pad5.Length = 30
pad5.Reversed = True

sketch12 = body.newObject("Sketcher::SketchObject", "Sketch011")
sketch12.AttachmentSupport = (doc.getObject("YZ_Plane"), [""])
sketch12.MapMode = "FlatFace"
sketch12.addGeometry(Part.LineSegment(Vector(33.12, -4.95, 0), Vector(33.12, -25.05, 0)), False)
sketch12.addGeometry(Part.LineSegment(Vector(33.12, -25.05, 0), Vector(31.1, -25.05, 0)), False)
sketch12.addGeometry(Part.LineSegment(Vector(31.1, -25.05, 0), Vector(31.1, -4.95, 0)), False)
sketch12.addGeometry(Part.LineSegment(Vector(31.1, -4.95, 0), Vector(33.12, -4.95, 0)), False)
sketch12.addConstraint(Sketcher.Constraint("Coincident", 0, 2, 1, 1))
sketch12.addConstraint(Sketcher.Constraint("Coincident", 1, 2, 2, 1))
sketch12.addConstraint(Sketcher.Constraint("Coincident", 2, 2, 3, 1))
sketch12.addConstraint(Sketcher.Constraint("Coincident", 3, 2, 0, 1))
sketch12.addConstraint(Sketcher.Constraint("Vertical", 0))
sketch12.addConstraint(Sketcher.Constraint("Horizontal", 1))
sketch12.addConstraint(Sketcher.Constraint("Vertical", 2))
sketch12.addConstraint(Sketcher.Constraint("Horizontal", 3))
sketch12.addConstraint(Sketcher.Constraint("DistanceX", 1, 2, 1, 1, Q("2.02 mm")))
sketch12.addConstraint(Sketcher.Constraint("DistanceY", 0, 2, 0, 1, Q("20.1 mm")))
sketch12.addConstraint(Sketcher.Constraint("DistanceX", -1, 1, 1, 2, Q("31.1 mm")))
sketch12.addConstraint(Sketcher.Constraint("DistanceY", 0, 2, -1, 1, Q("25.05 mm")))
pad6 = body.newObject("PartDesign::Pad", "Pad005")
pad6.Profile = sketch12
pad6.Length = 20

sketch13 = body.newObject("Sketcher::SketchObject", "Sketch012")
sketch13.AttachmentSupport = (doc.getObject("XY_Plane"), [""])
sketch13.MapMode = "FlatFace"
sketch13.addGeometry(Part.LineSegment(Vector(-23, 100, 0), Vector(-15, 100, 0)), False)
sketch13.addGeometry(Part.ArcOfCircle(Part.Circle(Vector(-15, 85, 0), Vector(0, 0, 1), 15), math.radians(0), math.radians(90)), False)
sketch13.addGeometry(Part.LineSegment(Vector(0, 85, 0), Vector(0, 77.5, 0)), False)
sketch13.addGeometry(Part.LineSegment(Vector(0, 77.5, 0), Vector(30, 77.5, 0)), False)
sketch13.addGeometry(Part.LineSegment(Vector(30, 77.5, 0), Vector(30, 122.5, 0)), False)
sketch13.addGeometry(Part.LineSegment(Vector(30, 122.5, 0), Vector(15, 145, 0)), False)
sketch13.addGeometry(Part.LineSegment(Vector(15, 145, 0), Vector(-23, 145, 0)), False)
sketch13.addGeometry(Part.LineSegment(Vector(-23, 145, 0), Vector(-18, 142.5, 0)), False)
sketch13.addGeometry(Part.LineSegment(Vector(-18, 142.5, 0), Vector(-13, 122.5, 0)), False)
sketch13.addGeometry(Part.LineSegment(Vector(-13, 122.5, 0), Vector(-18, 102.5, 0)), False)
sketch13.addGeometry(Part.LineSegment(Vector(-18, 102.5, 0), Vector(-23, 100, 0)), False)
sketch13.addConstraint(Sketcher.Constraint("Tangent", 0, 2, 1, 2))
sketch13.addConstraint(Sketcher.Constraint("Tangent", 1, 1, 2, 1))
sketch13.addConstraint(Sketcher.Constraint("Coincident", 2, 2, 3, 1))
sketch13.addConstraint(Sketcher.Constraint("Coincident", 3, 2, 4, 1))
sketch13.addConstraint(Sketcher.Constraint("Coincident", 4, 2, 5, 1))
sketch13.addConstraint(Sketcher.Constraint("Coincident", 5, 2, 6, 1))
sketch13.addConstraint(Sketcher.Constraint("Coincident", 6, 2, 7, 1))
sketch13.addConstraint(Sketcher.Constraint("Coincident", 7, 2, 8, 1))
sketch13.addConstraint(Sketcher.Constraint("Coincident", 8, 2, 9, 1))
sketch13.addConstraint(Sketcher.Constraint("Coincident", 9, 2, 10, 1))
sketch13.addConstraint(Sketcher.Constraint("Coincident", 10, 2, 0, 1))
sketch13.addConstraint(Sketcher.Constraint("Horizontal", 0))
sketch13.addConstraint(Sketcher.Constraint("Vertical", 2))
sketch13.addConstraint(Sketcher.Constraint("Horizontal", 3))
sketch13.addConstraint(Sketcher.Constraint("Vertical", 4))
sketch13.addConstraint(Sketcher.Constraint("Horizontal", 6))
sketch13.addConstraint(Sketcher.Constraint("PointOnObject", 1, 1, -2))
sketch13.addConstraint(Sketcher.Constraint("Horizontal", 4, 2, 8, 2))
sketch13.addConstraint(Sketcher.Constraint("Vertical", 7, 2, 9, 2))
sketch13.addConstraint(Sketcher.Constraint("Vertical", 6, 2, 10, 2))
sketch13.addConstraint(Sketcher.Constraint("Equal", 8, 9))
sketch13.addConstraint(Sketcher.Constraint("Equal", 7, 10))
sketch13.addConstraint(Sketcher.Constraint("DistanceY", 4, 1, 4, 2, Q("45 mm")))
sketch13.addConstraint(Sketcher.Constraint("Radius", 1, Q("15 mm")))
sketch13.addConstraint(Sketcher.Constraint("DistanceX", 1, 3, 3, 2, Q("45 mm")))
sketch13.addConstraint(Sketcher.Constraint("DistanceY", 0, 2, 5, 2, Q("45 mm")))
sketch13.addConstraint(Sketcher.Constraint("DistanceX", 0, 1, 0, 2, Q("8 mm")))
sketch13.addConstraint(Sketcher.Constraint("DistanceX", 6, 2, 6, 1, Q("38 mm")))
sketch13.addConstraint(Sketcher.Constraint("DistanceY", -1, 1, 1, 3, Q("85 mm")))
sketch13.addConstraint(Sketcher.Constraint("DistanceX", 7, 2, -1, 1, Q("18 mm")))
sketch13.addConstraint(Sketcher.Constraint("DistanceX", 8, 2, -1, 1, Q("13 mm")))
sketch13.addConstraint(Sketcher.Constraint("DistanceY", 4, 2, 7, 2, Q("20 mm")))
pad7 = body.newObject("PartDesign::Pad", "Pad006")
pad7.Profile = sketch13
pad7.Length = 15
doc.recompute()

datumplane = body.newObject("PartDesign::Plane", "DatumPlane")
datumplane.AttachmentSupport = (doc.getObject("XY_Plane"), [""])
datumplane.MapMode = "FlatFace"
datumplane.AttachmentOffset = App.Placement(Vector(0, 0, -15), App.Rotation())
mirrored = body.newObject("PartDesign::Mirrored", "Mirrored")
mirrored.Originals = [pad7]
mirrored.MirrorPlane = (datumplane, [""])
body.Tip = mirrored

doc.recompute()
